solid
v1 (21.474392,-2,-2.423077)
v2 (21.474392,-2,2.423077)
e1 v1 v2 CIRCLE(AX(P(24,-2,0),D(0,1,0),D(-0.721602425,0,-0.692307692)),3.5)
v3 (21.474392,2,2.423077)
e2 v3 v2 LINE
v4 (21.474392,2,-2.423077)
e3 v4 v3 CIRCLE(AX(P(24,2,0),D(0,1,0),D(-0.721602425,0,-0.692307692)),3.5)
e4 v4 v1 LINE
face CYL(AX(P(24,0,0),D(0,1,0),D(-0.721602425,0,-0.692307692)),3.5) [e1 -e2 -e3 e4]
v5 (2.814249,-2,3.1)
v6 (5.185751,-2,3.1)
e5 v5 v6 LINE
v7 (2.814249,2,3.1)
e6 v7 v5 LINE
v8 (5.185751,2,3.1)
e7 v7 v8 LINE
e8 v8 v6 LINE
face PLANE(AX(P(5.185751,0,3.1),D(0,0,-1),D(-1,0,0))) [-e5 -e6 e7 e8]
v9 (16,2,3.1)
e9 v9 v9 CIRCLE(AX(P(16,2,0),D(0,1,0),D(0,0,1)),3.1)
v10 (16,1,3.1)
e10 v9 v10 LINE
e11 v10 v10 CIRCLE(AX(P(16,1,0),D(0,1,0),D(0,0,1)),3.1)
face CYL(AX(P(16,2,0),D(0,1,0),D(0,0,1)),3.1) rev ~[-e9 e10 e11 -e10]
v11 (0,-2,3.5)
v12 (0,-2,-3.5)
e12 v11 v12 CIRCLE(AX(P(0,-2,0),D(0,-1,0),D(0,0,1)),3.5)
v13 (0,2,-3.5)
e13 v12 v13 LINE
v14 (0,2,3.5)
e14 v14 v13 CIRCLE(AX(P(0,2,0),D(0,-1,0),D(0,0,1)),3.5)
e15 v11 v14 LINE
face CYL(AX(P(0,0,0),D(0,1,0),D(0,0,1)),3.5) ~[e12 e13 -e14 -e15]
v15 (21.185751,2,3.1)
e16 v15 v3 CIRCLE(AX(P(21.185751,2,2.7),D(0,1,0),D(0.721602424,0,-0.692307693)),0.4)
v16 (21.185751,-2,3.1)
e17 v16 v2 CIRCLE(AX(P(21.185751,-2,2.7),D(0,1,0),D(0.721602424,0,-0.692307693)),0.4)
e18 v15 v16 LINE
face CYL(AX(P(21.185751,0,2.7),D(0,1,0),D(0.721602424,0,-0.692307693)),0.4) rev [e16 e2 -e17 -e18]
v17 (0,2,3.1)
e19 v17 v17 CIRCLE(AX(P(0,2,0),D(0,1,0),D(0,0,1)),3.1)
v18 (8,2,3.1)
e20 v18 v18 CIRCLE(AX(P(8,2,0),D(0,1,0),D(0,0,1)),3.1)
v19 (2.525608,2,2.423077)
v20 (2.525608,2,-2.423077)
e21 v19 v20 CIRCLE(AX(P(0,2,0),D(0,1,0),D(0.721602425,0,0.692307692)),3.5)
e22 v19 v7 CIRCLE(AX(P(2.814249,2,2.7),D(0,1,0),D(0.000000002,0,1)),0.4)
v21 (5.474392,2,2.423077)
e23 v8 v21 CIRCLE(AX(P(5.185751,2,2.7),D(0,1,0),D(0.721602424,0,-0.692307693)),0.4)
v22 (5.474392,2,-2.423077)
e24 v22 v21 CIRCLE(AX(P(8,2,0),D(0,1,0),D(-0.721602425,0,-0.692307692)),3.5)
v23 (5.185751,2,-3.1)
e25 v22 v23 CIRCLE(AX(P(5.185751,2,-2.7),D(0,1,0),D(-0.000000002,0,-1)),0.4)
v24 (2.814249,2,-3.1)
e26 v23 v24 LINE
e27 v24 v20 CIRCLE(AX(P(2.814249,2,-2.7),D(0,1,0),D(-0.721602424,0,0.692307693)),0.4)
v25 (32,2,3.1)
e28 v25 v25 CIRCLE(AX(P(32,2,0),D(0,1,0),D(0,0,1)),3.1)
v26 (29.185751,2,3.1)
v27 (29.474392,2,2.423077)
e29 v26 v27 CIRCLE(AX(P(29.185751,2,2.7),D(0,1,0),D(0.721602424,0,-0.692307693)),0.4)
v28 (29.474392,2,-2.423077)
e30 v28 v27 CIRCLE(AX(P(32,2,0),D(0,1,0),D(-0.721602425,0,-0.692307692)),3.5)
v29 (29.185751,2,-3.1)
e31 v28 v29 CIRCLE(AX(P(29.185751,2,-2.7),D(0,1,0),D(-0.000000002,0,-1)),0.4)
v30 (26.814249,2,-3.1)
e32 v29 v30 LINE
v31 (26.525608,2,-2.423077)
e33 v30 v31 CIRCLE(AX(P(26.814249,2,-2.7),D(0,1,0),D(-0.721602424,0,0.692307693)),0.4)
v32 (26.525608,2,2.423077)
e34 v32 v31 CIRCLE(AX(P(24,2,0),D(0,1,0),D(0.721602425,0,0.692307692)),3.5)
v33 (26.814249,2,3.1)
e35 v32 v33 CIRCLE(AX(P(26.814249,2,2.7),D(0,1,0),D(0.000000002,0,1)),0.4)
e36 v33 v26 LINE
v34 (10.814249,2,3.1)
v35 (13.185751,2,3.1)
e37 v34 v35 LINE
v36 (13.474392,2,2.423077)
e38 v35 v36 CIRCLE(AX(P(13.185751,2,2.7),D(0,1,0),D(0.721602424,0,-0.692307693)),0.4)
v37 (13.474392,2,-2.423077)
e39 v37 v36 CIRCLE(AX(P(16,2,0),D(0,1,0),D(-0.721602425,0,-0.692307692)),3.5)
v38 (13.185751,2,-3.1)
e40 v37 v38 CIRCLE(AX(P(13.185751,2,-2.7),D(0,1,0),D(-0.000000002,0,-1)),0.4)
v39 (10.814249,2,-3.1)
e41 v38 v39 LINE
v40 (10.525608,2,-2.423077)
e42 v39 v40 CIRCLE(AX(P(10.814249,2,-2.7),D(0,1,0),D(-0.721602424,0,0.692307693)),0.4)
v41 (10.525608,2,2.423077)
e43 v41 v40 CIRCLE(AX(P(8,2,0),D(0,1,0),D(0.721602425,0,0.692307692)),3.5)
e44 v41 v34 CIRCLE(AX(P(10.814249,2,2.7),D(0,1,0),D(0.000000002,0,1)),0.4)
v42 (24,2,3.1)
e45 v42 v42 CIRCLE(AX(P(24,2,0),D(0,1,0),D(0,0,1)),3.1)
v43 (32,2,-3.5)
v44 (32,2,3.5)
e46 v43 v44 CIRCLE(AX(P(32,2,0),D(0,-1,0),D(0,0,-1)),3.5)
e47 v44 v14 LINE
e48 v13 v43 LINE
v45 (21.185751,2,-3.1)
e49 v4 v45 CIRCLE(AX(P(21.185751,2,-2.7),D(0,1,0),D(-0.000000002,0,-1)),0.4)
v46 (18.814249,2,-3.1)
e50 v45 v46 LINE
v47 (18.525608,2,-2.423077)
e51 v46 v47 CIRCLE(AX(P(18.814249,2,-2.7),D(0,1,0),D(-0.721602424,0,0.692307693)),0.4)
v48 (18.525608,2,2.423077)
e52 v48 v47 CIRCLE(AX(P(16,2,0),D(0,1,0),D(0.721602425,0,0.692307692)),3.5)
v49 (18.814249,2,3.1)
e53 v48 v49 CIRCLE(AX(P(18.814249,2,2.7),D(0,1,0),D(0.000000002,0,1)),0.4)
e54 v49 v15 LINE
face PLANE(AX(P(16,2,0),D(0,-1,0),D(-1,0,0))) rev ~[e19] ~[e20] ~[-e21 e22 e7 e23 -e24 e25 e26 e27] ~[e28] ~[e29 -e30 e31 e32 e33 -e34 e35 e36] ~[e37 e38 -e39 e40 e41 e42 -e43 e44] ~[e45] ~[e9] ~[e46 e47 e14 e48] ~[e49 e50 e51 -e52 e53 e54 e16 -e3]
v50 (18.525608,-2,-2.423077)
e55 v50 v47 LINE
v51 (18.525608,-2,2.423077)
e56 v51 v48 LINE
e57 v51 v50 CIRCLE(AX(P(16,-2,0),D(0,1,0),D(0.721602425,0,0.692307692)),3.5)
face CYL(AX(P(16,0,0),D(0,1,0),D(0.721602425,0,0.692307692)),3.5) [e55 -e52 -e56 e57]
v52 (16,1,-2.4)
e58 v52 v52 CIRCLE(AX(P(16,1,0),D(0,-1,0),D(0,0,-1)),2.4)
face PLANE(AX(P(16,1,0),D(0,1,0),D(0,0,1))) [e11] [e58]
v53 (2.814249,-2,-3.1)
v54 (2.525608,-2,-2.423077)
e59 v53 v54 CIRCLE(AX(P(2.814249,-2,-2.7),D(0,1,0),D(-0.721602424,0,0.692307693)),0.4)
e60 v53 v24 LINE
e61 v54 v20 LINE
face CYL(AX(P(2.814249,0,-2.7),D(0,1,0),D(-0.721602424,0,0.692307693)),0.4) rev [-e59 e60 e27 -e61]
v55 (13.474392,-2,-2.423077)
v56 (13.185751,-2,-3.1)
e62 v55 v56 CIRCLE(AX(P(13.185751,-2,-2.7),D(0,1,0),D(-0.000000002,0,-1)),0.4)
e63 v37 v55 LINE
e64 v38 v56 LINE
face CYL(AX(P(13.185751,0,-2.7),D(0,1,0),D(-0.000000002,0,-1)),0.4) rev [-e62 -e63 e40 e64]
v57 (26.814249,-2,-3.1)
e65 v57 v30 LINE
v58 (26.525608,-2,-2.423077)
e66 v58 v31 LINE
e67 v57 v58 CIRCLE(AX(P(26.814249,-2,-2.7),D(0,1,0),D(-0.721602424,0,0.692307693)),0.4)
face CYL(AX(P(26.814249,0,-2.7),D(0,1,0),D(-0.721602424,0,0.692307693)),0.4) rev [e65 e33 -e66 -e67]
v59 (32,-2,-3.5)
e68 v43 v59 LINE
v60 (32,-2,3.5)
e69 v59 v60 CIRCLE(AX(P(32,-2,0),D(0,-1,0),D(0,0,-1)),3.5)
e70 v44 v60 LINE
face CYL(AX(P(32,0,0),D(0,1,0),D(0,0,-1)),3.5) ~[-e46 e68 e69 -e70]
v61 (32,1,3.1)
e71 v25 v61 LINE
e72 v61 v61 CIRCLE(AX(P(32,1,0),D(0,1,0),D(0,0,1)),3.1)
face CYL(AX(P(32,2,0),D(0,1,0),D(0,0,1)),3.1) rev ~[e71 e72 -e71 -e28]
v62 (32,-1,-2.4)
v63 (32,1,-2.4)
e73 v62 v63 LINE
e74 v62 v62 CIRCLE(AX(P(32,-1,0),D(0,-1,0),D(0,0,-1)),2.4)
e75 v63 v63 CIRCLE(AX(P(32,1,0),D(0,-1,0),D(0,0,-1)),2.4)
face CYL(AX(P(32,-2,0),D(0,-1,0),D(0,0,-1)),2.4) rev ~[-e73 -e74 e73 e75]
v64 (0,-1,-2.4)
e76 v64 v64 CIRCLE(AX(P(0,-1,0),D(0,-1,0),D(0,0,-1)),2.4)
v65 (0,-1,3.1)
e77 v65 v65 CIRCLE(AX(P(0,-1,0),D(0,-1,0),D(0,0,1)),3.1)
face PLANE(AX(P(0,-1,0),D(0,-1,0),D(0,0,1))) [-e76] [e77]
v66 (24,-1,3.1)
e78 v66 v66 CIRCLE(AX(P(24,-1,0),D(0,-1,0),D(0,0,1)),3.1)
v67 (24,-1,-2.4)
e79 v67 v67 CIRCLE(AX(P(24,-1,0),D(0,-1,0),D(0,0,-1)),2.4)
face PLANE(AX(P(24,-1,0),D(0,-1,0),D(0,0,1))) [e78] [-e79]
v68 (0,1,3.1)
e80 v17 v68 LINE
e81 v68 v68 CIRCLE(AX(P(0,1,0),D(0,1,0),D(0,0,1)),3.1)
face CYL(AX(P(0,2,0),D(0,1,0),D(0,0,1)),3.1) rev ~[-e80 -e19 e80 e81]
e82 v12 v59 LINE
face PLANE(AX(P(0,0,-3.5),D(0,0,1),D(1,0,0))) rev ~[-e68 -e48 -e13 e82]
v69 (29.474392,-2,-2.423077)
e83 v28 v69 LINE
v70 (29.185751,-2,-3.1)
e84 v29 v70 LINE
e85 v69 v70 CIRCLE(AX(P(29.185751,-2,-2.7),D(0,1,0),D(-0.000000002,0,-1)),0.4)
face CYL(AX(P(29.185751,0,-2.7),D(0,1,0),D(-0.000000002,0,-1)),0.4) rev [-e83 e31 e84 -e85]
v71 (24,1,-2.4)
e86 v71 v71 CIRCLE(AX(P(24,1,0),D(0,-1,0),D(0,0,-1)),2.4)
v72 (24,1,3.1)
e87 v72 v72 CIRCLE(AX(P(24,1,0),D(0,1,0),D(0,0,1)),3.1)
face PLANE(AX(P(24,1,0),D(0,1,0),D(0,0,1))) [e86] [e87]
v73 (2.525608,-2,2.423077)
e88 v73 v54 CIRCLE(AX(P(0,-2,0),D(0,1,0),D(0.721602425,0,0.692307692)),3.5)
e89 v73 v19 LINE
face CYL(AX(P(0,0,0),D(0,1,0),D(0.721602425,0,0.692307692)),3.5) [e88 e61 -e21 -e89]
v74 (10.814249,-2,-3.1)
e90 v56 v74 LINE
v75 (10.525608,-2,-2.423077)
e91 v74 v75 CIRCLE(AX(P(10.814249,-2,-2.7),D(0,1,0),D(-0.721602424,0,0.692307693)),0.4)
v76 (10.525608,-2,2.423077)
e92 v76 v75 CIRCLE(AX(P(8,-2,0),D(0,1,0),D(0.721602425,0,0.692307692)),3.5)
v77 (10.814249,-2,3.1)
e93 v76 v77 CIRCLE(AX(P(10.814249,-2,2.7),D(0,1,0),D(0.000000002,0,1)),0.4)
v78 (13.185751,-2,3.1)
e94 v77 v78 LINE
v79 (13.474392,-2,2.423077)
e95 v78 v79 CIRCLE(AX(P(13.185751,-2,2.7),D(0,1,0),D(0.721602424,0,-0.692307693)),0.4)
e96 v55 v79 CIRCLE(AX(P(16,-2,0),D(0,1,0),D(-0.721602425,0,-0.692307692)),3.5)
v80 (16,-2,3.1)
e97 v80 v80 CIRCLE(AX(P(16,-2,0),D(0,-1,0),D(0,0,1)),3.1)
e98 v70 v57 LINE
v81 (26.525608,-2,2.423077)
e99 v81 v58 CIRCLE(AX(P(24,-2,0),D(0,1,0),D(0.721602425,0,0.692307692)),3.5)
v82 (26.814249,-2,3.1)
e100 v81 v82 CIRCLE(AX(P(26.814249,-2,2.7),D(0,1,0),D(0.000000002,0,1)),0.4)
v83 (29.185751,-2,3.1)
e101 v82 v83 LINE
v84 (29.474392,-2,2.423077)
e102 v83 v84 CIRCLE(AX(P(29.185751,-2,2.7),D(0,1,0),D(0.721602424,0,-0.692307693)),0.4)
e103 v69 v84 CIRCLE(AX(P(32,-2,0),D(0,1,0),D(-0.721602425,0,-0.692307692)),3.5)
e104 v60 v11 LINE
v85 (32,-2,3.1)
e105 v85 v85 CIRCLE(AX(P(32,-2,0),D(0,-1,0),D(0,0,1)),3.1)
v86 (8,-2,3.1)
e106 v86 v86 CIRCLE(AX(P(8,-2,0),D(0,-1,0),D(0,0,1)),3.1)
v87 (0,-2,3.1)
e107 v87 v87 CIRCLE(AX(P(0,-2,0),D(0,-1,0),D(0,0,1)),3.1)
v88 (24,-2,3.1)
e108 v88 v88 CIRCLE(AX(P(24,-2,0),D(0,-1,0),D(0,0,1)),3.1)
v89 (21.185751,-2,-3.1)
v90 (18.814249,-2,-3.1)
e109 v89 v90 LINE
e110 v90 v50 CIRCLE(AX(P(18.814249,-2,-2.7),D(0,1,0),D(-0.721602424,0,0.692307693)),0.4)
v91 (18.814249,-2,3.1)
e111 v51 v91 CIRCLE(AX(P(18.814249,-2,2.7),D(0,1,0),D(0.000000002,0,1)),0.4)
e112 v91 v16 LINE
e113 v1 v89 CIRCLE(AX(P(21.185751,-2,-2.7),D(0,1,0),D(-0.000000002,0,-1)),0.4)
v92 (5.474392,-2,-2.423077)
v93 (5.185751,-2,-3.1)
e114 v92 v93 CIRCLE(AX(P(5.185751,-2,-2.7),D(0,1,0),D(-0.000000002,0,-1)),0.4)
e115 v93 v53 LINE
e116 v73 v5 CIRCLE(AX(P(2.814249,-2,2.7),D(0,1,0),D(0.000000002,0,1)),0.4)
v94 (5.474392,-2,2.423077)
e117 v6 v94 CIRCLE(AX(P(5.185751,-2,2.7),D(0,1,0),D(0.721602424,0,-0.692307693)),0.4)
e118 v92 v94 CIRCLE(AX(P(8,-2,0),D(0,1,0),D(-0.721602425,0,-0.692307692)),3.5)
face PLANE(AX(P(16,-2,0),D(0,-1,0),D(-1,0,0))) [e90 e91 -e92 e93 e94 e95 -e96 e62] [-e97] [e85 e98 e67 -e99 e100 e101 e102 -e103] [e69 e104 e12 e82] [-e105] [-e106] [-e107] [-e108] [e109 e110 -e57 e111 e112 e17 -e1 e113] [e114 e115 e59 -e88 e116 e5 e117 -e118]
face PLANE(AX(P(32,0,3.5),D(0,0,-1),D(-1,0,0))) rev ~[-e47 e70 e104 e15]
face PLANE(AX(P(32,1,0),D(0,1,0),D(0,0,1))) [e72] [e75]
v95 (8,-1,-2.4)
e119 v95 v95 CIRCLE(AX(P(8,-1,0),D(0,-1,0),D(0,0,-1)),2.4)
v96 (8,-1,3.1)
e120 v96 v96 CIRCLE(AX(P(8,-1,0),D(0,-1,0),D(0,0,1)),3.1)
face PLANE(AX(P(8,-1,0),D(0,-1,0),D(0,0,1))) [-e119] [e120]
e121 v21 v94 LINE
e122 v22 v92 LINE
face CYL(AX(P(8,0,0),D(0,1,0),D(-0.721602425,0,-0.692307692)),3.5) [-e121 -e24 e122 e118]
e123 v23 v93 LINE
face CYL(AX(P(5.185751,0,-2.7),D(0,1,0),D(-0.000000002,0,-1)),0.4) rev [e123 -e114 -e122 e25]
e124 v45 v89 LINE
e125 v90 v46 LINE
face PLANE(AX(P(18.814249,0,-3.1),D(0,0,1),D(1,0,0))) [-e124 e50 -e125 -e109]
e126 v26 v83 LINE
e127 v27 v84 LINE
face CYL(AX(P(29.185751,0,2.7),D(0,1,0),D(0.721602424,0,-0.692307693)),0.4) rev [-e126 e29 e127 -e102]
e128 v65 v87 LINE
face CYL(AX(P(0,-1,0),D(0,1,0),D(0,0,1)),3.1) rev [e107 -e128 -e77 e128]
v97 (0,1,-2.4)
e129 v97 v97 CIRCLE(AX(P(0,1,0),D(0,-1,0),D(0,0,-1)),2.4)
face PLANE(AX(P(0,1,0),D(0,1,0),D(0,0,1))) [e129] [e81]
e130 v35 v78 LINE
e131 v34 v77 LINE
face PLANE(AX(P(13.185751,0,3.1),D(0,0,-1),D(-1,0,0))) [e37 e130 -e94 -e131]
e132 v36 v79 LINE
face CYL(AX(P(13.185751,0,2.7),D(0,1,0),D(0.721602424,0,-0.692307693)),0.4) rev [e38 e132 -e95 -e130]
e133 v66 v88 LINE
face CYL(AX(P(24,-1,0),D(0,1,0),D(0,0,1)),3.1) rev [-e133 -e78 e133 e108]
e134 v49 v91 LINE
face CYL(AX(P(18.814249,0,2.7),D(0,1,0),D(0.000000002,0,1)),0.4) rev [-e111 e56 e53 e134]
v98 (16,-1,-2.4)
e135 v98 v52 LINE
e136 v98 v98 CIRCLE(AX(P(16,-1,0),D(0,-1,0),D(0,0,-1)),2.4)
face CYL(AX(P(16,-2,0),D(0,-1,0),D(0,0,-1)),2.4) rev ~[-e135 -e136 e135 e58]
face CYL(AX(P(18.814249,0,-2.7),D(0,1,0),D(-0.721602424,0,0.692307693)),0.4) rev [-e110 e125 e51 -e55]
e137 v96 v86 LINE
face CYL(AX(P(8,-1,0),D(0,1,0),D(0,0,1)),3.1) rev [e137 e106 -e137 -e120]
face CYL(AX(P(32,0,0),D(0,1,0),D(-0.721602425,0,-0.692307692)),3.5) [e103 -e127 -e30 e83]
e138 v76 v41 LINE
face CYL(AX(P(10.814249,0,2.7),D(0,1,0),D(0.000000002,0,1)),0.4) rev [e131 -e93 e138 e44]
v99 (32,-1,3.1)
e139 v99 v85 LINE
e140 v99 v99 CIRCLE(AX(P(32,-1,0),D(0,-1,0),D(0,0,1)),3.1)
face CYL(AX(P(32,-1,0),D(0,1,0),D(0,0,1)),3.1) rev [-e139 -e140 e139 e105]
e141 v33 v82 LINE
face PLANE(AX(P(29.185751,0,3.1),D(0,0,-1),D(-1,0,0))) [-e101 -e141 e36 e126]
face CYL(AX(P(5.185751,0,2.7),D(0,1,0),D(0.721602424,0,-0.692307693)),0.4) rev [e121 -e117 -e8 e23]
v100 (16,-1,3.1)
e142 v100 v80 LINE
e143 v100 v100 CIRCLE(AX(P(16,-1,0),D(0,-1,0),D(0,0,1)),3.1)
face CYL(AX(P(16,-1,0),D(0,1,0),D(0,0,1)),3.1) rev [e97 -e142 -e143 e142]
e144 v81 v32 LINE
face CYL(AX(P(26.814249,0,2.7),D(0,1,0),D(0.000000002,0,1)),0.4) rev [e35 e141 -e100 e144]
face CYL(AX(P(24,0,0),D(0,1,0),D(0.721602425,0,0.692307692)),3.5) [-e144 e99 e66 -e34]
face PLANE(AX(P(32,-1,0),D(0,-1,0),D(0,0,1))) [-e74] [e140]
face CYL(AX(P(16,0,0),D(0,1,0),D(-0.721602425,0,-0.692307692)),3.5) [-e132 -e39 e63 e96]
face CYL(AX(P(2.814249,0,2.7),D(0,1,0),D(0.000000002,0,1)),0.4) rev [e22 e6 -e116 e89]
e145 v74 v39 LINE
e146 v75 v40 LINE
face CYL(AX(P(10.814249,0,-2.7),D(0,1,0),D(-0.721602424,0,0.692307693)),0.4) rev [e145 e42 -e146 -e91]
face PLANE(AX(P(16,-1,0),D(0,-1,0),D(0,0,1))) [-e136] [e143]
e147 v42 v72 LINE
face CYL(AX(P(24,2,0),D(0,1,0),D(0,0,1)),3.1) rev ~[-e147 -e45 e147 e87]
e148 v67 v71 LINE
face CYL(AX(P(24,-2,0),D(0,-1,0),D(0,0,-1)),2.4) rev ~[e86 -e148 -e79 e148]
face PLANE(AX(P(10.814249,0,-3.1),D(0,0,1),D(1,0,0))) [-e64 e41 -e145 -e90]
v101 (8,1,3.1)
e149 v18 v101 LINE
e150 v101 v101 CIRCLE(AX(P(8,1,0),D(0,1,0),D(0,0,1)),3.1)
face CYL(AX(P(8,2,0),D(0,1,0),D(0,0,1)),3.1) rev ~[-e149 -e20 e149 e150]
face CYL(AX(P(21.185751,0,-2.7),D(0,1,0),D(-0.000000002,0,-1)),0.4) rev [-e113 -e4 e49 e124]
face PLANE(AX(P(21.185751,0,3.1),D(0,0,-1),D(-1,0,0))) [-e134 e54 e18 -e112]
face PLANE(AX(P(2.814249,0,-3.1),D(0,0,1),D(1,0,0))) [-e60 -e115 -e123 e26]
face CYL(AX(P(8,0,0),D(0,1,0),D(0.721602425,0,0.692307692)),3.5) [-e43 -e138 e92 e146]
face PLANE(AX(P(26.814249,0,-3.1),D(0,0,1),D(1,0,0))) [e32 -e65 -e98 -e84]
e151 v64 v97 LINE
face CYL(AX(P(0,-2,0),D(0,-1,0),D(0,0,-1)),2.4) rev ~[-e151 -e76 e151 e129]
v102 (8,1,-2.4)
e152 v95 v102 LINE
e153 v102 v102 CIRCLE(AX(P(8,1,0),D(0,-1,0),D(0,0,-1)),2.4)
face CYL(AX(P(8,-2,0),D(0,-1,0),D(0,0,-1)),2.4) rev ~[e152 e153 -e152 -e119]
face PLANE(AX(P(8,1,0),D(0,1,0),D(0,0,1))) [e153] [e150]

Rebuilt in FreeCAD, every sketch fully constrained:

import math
import FreeCAD as App
import Part
import Sketcher
from FreeCAD import Vector
Q = App.Units.Quantity

doc = App.newDocument("Part")
body = doc.addObject("PartDesign::Body", "Body")

sketch1 = body.newObject("Sketcher::SketchObject", "Sketch")
sketch1.AttachmentSupport = (doc.getObject("XZ_Plane"), [""])
sketch1.MapMode = "FlatFace"
sketch1.addGeometry([
    Part.LineSegment(Vector(32, -3.5, 0), Vector(0, -3.5, 0)),
    Part.ArcOfCircle(Part.Circle(Vector(0, 0, 0), Vector(0, 0, 1), 3.5), math.radians(90), math.radians(270)),
    Part.LineSegment(Vector(0, 3.5, 0), Vector(32, 3.5, 0)),
    Part.ArcOfCircle(Part.Circle(Vector(32, 0, 0), Vector(0, 0, 1), 3.5), math.radians(-90), math.radians(90)),
], False)
sketch1.addConstraint([
    Sketcher.Constraint("Tangent", 0, 2, 1, 2),
    Sketcher.Constraint("Tangent", 1, 1, 2, 1),
    Sketcher.Constraint("Tangent", 2, 2, 3, 2),
    Sketcher.Constraint("Tangent", 3, 1, 0, 1),
    Sketcher.Constraint("Horizontal", 0),
    Sketcher.Constraint("Horizontal", 2),
    Sketcher.Constraint("Coincident", 1, 3, -1, 1),
    Sketcher.Constraint("Radius", 1, Q("3.5 mm")),
    Sketcher.Constraint("DistanceX", 0, 2, 0, 1, Q("32 mm")),
])
pad1 = body.newObject("PartDesign::Pad", "Pad")
pad1.Profile = sketch1
pad1.Length = 4
pad1.Midplane = True

sketch2 = body.newObject("Sketcher::SketchObject", "Sketch001")
sketch2.AttachmentSupport = (doc.getObject("XZ_Plane"), [""])
sketch2.MapMode = "FlatFace"
sketch2.AttachmentOffset = App.Placement(Vector(0, 0, -2), App.Rotation())
sketch2.addGeometry(Part.Circle(Vector(0, 0, 0), Vector(0, 0, 1), 3.1), False)
sketch2.addConstraint([
    Sketcher.Constraint("Coincident", 0, 3, -1, 1),
    Sketcher.Constraint("Diameter", 0, Q("6.2 mm")),
])
pocket1 = body.newObject("PartDesign::Pocket", "Pocket")
pocket1.Profile = sketch2
pocket1.Length = 1
pocket1.Reversed = True

sketch3 = body.newObject("Sketcher::SketchObject", "Sketch002")
sketch3.AttachmentSupport = (doc.getObject("XZ_Plane"), [""])
sketch3.MapMode = "FlatFace"
sketch3.AttachmentOffset = App.Placement(Vector(0, 0, 1), App.Rotation())
sketch3.addGeometry(Part.Circle(Vector(0, 0, 0), Vector(0, 0, 1), 3.1), False)
sketch3.addConstraint([
    Sketcher.Constraint("Coincident", 0, 3, -1, 1),
    Sketcher.Constraint("Diameter", 0, Q("6.2 mm")),
])
pocket2 = body.newObject("PartDesign::Pocket", "Pocket001")
pocket2.Profile = sketch3
pocket2.Length = 1
pocket2.Reversed = True

sketch4 = body.newObject("Sketcher::SketchObject", "Sketch003")
sketch4.AttachmentSupport = (doc.getObject("XZ_Plane"), [""])
sketch4.MapMode = "FlatFace"
sketch4.AttachmentOffset = App.Placement(Vector(0, 0, 2), App.Rotation())
sketch4.addGeometry(Part.Circle(Vector(0, 0, 0), Vector(0, 0, 1), 2.4), False)
sketch4.addConstraint([
    Sketcher.Constraint("Coincident", 0, 3, -1, 1),
    Sketcher.Constraint("Diameter", 0, Q("4.8 mm")),
])
pocket3 = body.newObject("PartDesign::Pocket", "Pocket002")
pocket3.Profile = sketch4
pocket3.Type = "ThroughAll"
doc.recompute()

linearpattern = body.newObject("PartDesign::LinearPattern", "LinearPattern")
linearpattern.Originals = [pocket1, pocket2, pocket3]
linearpattern.Direction = (doc.getObject("X_Axis"), [""])
linearpattern.Mode = "offset"
linearpattern.Offset = 8
linearpattern.Occurrences = 5
body.Tip = linearpattern

sketch5 = body.newObject("Sketcher::SketchObject", "Sketch004")
sketch5.AttachmentSupport = (doc.getObject("XZ_Plane"), [""])
sketch5.MapMode = "FlatFace"
sketch5.addGeometry([
    Part.LineSegment(Vector(5.19, -3.1, 0), Vector(2.81, -3.1, 0)),
    Part.ArcOfCircle(Part.Circle(Vector(2.81, -2.7, 0), Vector(0, 0, 1), 0.4), math.radians(136), math.radians(270)),
    Part.ArcOfCircle(Part.Circle(Vector(0, 0, 0), Vector(0, 0, 1), 3.5), math.radians(-44), math.radians(44)),
    Part.ArcOfCircle(Part.Circle(Vector(2.81, 2.7, 0), Vector(0, 0, 1), 0.4), math.radians(90), math.radians(224)),
    Part.LineSegment(Vector(2.81, 3.1, 0), Vector(5.19, 3.1, 0)),
    Part.ArcOfCircle(Part.Circle(Vector(5.19, 2.7, 0), Vector(0, 0, 1), 0.4), math.radians(-44), math.radians(90)),
    Part.ArcOfCircle(Part.Circle(Vector(8, 0, 0), Vector(0, 0, 1), 3.5), math.radians(136), math.radians(224)),
    Part.ArcOfCircle(Part.Circle(Vector(5.19, -2.7, 0), Vector(0, 0, 1), 0.4), math.radians(-90), math.radians(44)),
], False)
sketch5.addConstraint([
    Sketcher.Constraint("Tangent", 0, 2, 1, 2),
    Sketcher.Constraint("Tangent", 1, 1, 2, 1),
    Sketcher.Constraint("Tangent", 2, 2, 3, 2),
    Sketcher.Constraint("Tangent", 3, 1, 4, 1),
    Sketcher.Constraint("Tangent", 4, 2, 5, 2),
    Sketcher.Constraint("Tangent", 5, 1, 6, 1),
    Sketcher.Constraint("Tangent", 6, 2, 7, 2),
    Sketcher.Constraint("Tangent", 7, 1, 0, 1),
    Sketcher.Constraint("Horizontal", 0),
    Sketcher.Constraint("Horizontal", 4),
    Sketcher.Constraint("Coincident", 2, 3, -1, 1),
    Sketcher.Constraint("Equal", 1, 3),
    Sketcher.Constraint("Equal", 3, 5),
    Sketcher.Constraint("Equal", 2, 6),
    Sketcher.Constraint("Equal", 5, 7),
    Sketcher.Constraint("Symmetric", 5, 3, 7, 3, -1),
    Sketcher.Constraint("Radius", 1, Q("0.4 mm")),
    Sketcher.Constraint("Radius", 2, Q("3.5 mm")),
    Sketcher.Constraint("DistanceX", -1, 1, 6, 3, Q("8 mm")),
    Sketcher.Constraint("DistanceY", 1, 3, -1, 1, Q("2.7 mm")),
])
pocket4 = body.newObject("PartDesign::Pocket", "Pocket003")
pocket4.Profile = sketch5
pocket4.Length = 73.45628
pocket4.Midplane = True
doc.recompute()

linearpattern2 = body.newObject("PartDesign::LinearPattern", "LinearPattern001")
linearpattern2.Originals = [pocket4]
linearpattern2.Direction = (doc.getObject("X_Axis"), [""])
linearpattern2.Mode = "offset"
linearpattern2.Offset = 8
linearpattern2.Occurrences = 4
body.Tip = linearpattern2

doc.recompute()
